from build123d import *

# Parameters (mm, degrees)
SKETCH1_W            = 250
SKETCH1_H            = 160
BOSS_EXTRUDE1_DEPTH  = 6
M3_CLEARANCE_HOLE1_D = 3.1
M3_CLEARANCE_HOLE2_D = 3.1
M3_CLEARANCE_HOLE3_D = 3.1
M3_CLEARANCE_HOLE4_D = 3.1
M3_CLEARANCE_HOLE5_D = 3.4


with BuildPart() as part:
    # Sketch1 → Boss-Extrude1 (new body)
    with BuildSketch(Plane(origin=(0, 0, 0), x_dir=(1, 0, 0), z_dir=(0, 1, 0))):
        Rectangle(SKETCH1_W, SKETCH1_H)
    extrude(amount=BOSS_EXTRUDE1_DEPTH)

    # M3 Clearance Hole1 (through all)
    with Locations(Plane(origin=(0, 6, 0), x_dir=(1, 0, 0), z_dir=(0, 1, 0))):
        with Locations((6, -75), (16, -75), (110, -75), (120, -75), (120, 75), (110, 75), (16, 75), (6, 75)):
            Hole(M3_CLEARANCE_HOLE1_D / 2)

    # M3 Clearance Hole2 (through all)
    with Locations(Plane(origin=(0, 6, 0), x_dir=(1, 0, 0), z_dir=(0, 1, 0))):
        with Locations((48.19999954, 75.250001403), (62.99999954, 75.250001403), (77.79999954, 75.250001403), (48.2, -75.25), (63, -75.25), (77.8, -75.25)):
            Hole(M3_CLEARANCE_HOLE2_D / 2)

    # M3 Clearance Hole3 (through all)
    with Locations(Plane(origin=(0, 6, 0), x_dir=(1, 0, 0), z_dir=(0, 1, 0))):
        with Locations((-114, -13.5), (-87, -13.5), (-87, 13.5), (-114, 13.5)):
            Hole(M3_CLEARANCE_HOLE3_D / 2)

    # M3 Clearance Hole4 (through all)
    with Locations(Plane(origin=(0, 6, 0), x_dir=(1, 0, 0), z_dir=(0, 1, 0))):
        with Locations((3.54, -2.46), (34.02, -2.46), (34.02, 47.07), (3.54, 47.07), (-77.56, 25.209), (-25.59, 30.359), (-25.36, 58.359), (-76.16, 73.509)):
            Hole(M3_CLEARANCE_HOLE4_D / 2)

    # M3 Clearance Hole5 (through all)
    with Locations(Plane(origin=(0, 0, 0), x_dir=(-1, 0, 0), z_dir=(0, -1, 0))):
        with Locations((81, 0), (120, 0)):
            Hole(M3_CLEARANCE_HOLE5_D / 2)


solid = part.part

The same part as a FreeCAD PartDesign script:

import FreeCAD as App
import Part
import Sketcher
from FreeCAD import Vector

doc = App.newDocument("Part")
body = doc.addObject("PartDesign::Body", "Body")

# Sketch on XZ plane
sketch1 = doc.addObject("Sketcher::SketchObject", "Sketch")
body.addObject(sketch1)
sketch1.AttachmentSupport = (doc.XZ_Plane, [""])
sketch1.MapMode = "FlatFace"
sketch1.addGeometry([
    Part.LineSegment(Vector(-125, -80, 0), Vector(-125, 80, 0)),
    Part.LineSegment(Vector(-125, 80, 0), Vector(125, 80, 0)),
    Part.LineSegment(Vector(125, 80, 0), Vector(125, -80, 0)),
    Part.LineSegment(Vector(125, -80, 0), Vector(-125, -80, 0)),
], False)
sketch1.addConstraint([
    Sketcher.Constraint("Coincident", 0, 2, 1, 1),
    Sketcher.Constraint("Coincident", 1, 2, 2, 1),
    Sketcher.Constraint("Coincident", 2, 2, 3, 1),
    Sketcher.Constraint("Coincident", 3, 2, 0, 1),
    Sketcher.Constraint("Vertical", 0),
    Sketcher.Constraint("Horizontal", 1),
    Sketcher.Constraint("Vertical", 2),
    Sketcher.Constraint("Horizontal", 3),
    Sketcher.Constraint("Symmetric", 0, 2, 2, 2, -1, 1),
    Sketcher.Constraint("DistanceX", 1, 1, 1, 2, 250.0),
    Sketcher.Constraint("DistanceY", 0, 1, 0, 2, 160.0),
])
pad1 = doc.addObject("PartDesign::Pad", "Pad")
body.addObject(pad1)
pad1.Profile = sketch1
pad1.Length = 6
pad1.Reversed = True

# Sketch on XZ plane
sketch2 = doc.addObject("Sketcher::SketchObject", "Sketch001")
body.addObject(sketch2)
sketch2.AttachmentSupport = (doc.XZ_Plane, [""])
sketch2.MapMode = "FlatFace"
sketch2.AttachmentOffset = App.Placement(Vector(0, 0, -6), App.Rotation())
sketch2.addGeometry([
    Part.Circle(Vector(6, 75, 0), Vector(0, 0, 1), 1.6),  # 0
    Part.Circle(Vector(16, 75, 0), Vector(0, 0, 1), 1.6),  # 1
    Part.Circle(Vector(110, 75, 0), Vector(0, 0, 1), 1.6),  # 2
    Part.Circle(Vector(120, 75, 0), Vector(0, 0, 1), 1.6),  # 3
    Part.Circle(Vector(120, -75, 0), Vector(0, 0, 1), 1.6),  # 4
    Part.Circle(Vector(110, -75, 0), Vector(0, 0, 1), 1.6),  # 5
    Part.Circle(Vector(16, -75, 0), Vector(0, 0, 1), 1.6),  # 6
    Part.Circle(Vector(6, -75, 0), Vector(0, 0, 1), 1.6),  # 7
], False)
sketch2.addConstraint([
    Sketcher.Constraint("Equal", 0, 1),
    Sketcher.Constraint("Equal", 1, 2),
    Sketcher.Constraint("Equal", 2, 3),
    Sketcher.Constraint("Equal", 3, 4),
    Sketcher.Constraint("Equal", 4, 5),
    Sketcher.Constraint("Equal", 5, 6),
    Sketcher.Constraint("Equal", 6, 7),
    Sketcher.Constraint("Symmetric", 3, 3, 4, 3, -1),
    Sketcher.Constraint("Symmetric", 2, 3, 5, 3, -1),
    Sketcher.Constraint("Symmetric", 1, 3, 6, 3, -1),
    Sketcher.Constraint("Symmetric", 0, 3, 7, 3, -1),
    Sketcher.Constraint("Horizontal", 0, 3, 1, 3),
    Sketcher.Constraint("Horizontal", 1, 3, 2, 3),
    Sketcher.Constraint("Horizontal", 2, 3, 3, 3),
    Sketcher.Constraint("Diameter", 0, 3.1),
    Sketcher.Constraint("DistanceX", -1, 1, 0, 3, 6.0),
    Sketcher.Constraint("DistanceY", -1, 1, 0, 3, 75.0),
    Sketcher.Constraint("DistanceX", -1, 1, 1, 3, 16.0),
    Sketcher.Constraint("DistanceX", -1, 1, 2, 3, 110.0),
    Sketcher.Constraint("DistanceX", -1, 1, 3, 3, 120.0),
])
doc.recompute()
hole = doc.addObject("PartDesign::Hole", "Hole")
body.addObject(hole)
hole.Profile = sketch2
hole.ThreadType = "None"
hole.Diameter = 3.1
hole.DepthType = "ThroughAll"
hole.Reversed = True

# Sketch on XZ plane
sketch3 = doc.addObject("Sketcher::SketchObject", "Sketch002")
body.addObject(sketch3)
sketch3.AttachmentSupport = (doc.XZ_Plane, [""])
sketch3.MapMode = "FlatFace"
sketch3.AttachmentOffset = App.Placement(Vector(0, 0, -6), App.Rotation())
sketch3.addGeometry([
    Part.Circle(Vector(48.2, -75.3, 0), Vector(0, 0, 1), 1.6),  # 0
    Part.Circle(Vector(63, -75.3, 0), Vector(0, 0, 1), 1.6),  # 1
    Part.Circle(Vector(77.8, -75.3, 0), Vector(0, 0, 1), 1.6),  # 2
    Part.Circle(Vector(48.2, 75.2, 0), Vector(0, 0, 1), 1.6),  # 3
    Part.Circle(Vector(63, 75.2, 0), Vector(0, 0, 1), 1.6),  # 4
    Part.Circle(Vector(77.8, 75.2, 0), Vector(0, 0, 1), 1.6),  # 5
], False)
sketch3.addConstraint([
    Sketcher.Constraint("Equal", 0, 1),
    Sketcher.Constraint("Equal", 1, 2),
    Sketcher.Constraint("Equal", 2, 3),
    Sketcher.Constraint("Equal", 3, 4),
    Sketcher.Constraint("Equal", 4, 5),
    Sketcher.Constraint("Symmetric", 0, 3, 3, 3, -1),
    Sketcher.Constraint("Symmetric", 1, 3, 4, 3, -1),
    Sketcher.Constraint("Symmetric", 2, 3, 5, 3, -1),
    Sketcher.Constraint("Horizontal", 0, 3, 1, 3),
    Sketcher.Constraint("Horizontal", 1, 3, 2, 3),
    Sketcher.Constraint("Diameter", 0, 3.1),
    Sketcher.Constraint("DistanceX", -1, 1, 1, 3, 63.0),
    Sketcher.Constraint("DistanceX", -1, 1, 0, 3, 48.2),
    Sketcher.Constraint("DistanceX", -1, 1, 2, 3, 77.8),
    Sketcher.Constraint("DistanceY", 0, 3, 3, 3, 150.500001),
])
doc.recompute()
hole2 = doc.addObject("PartDesign::Hole", "Hole001")
body.addObject(hole2)
hole2.Profile = sketch3
hole2.ThreadType = "None"
hole2.Diameter = 3.1
hole2.DepthType = "ThroughAll"
hole2.Reversed = True

# Sketch on XZ plane
sketch4 = doc.addObject("Sketcher::SketchObject", "Sketch003")
body.addObject(sketch4)
sketch4.AttachmentSupport = (doc.XZ_Plane, [""])
sketch4.MapMode = "FlatFace"
sketch4.AttachmentOffset = App.Placement(Vector(0, 0, -6), App.Rotation())
sketch4.addGeometry([
    Part.Circle(Vector(-114, 13.5, 0), Vector(0, 0, 1), 1.6),
    Part.Circle(Vector(-87, 13.5, 0), Vector(0, 0, 1), 1.6),
    Part.Circle(Vector(-87, -13.5, 0), Vector(0, 0, 1), 1.6),
    Part.Circle(Vector(-114, -13.5, 0), Vector(0, 0, 1), 1.6),
], False)
sketch4.addConstraint([
    Sketcher.Constraint("Equal", 0, 1),
    Sketcher.Constraint("Equal", 1, 2),
    Sketcher.Constraint("Equal", 2, 3),
    Sketcher.Constraint("Symmetric", 1, 3, 2, 3, -1),
    Sketcher.Constraint("Symmetric", 0, 3, 3, 3, -1),
    Sketcher.Constraint("Horizontal", 0, 3, 1, 3),
    Sketcher.Constraint("Diameter", 0, 3.1),
    Sketcher.Constraint("DistanceX", 0, 3, -1, 1, 114.0),
    Sketcher.Constraint("DistanceX", 1, 3, -1, 1, 87.0),
    Sketcher.Constraint("DistanceY", 2, 3, 1, 3, 27.0),
])
doc.recompute()
hole3 = doc.addObject("PartDesign::Hole", "Hole002")
body.addObject(hole3)
hole3.Profile = sketch4
hole3.ThreadType = "None"
hole3.Diameter = 3.1
hole3.DepthType = "ThroughAll"
hole3.Reversed = True

# Sketch on XZ plane
sketch5 = doc.addObject("Sketcher::SketchObject", "Sketch004")
body.addObject(sketch5)
sketch5.AttachmentSupport = (doc.XZ_Plane, [""])
sketch5.MapMode = "FlatFace"
sketch5.AttachmentOffset = App.Placement(Vector(0, 0, -6), App.Rotation())
sketch5.addGeometry([
    Part.Circle(Vector(3.5, 2.5, 0), Vector(0, 0, 1), 1.6),  # 0
    Part.Circle(Vector(34, 2.5, 0), Vector(0, 0, 1), 1.6),  # 1
    Part.Circle(Vector(34, -47.1, 0), Vector(0, 0, 1), 1.6),  # 2
    Part.Circle(Vector(3.5, -47.1, 0), Vector(0, 0, 1), 1.6),  # 3
    Part.Circle(Vector(-77.6, -25.2, 0), Vector(0, 0, 1), 1.6),  # 4
    Part.Circle(Vector(-25.6, -30.4, 0), Vector(0, 0, 1), 1.6),  # 5
    Part.Circle(Vector(-25.4, -58.4, 0), Vector(0, 0, 1), 1.6),  # 6
    Part.Circle(Vector(-76.2, -73.5, 0), Vector(0, 0, 1), 1.6),  # 7
], False)
sketch5.addConstraint([
    Sketcher.Constraint("Equal", 0, 1),
    Sketcher.Constraint("Equal", 1, 2),
    Sketcher.Constraint("Equal", 2, 3),
    Sketcher.Constraint("Equal", 3, 4),
    Sketcher.Constraint("Equal", 4, 5),
    Sketcher.Constraint("Equal", 5, 6),
    Sketcher.Constraint("Equal", 6, 7),
    Sketcher.Constraint("Horizontal", 0, 3, 1, 3),
    Sketcher.Constraint("Horizontal", 2, 3, 3, 3),
    Sketcher.Constraint("Vertical", 1, 3, 2, 3),
    Sketcher.Constraint("Vertical", 0, 3, 3, 3),
    Sketcher.Constraint("Diameter", 0, 3.1),
    Sketcher.Constraint("DistanceY", 6, 3, 5, 3, 28.0),
    Sketcher.Constraint("DistanceX", 4, 3, 3, 3, 81.1),
    Sketcher.Constraint("DistanceX", 6, 3, 3, 3, 28.9),
    Sketcher.Constraint("DistanceX", 4, 3, 7, 3, 1.4),
    Sketcher.Constraint("DistanceY", 7, 3, 4, 3, 48.3),
    Sketcher.Constraint("DistanceX", -1, 1, 0, 3, 3.54),
    Sketcher.Constraint("DistanceY", -1, 1, 0, 3, 2.46),
    Sketcher.Constraint("DistanceX", -1, 1, 1, 3, 34.02),
    Sketcher.Constraint("DistanceY", 2, 3, -1, 1, 47.07),
    Sketcher.Constraint("DistanceX", 5, 3, -1, 1, 25.59),
    Sketcher.Constraint("DistanceY", 5, 3, 4, 3, 5.15),
    Sketcher.Constraint("DistanceY", 4, 3, -1, 1, 25.209),
])
doc.recompute()
hole4 = doc.addObject("PartDesign::Hole", "Hole003")
body.addObject(hole4)
hole4.Profile = sketch5
hole4.ThreadType = "None"
hole4.Diameter = 3.1
hole4.DepthType = "ThroughAll"
hole4.Reversed = True

# Sketch on XZ plane
sketch6 = doc.addObject("Sketcher::SketchObject", "Sketch005")
body.addObject(sketch6)
sketch6.AttachmentSupport = (doc.XZ_Plane, [""])
sketch6.MapMode = "FlatFace"
sketch6.addGeometry([
    Part.Circle(Vector(-81, 0, 0), Vector(0, 0, 1), 1.7),
    Part.Circle(Vector(-120, 0, 0), Vector(0, 0, 1), 1.7),
], False)
sketch6.addConstraint([
    Sketcher.Constraint("Equal", 0, 1),
    Sketcher.Constraint("PointOnObject", 0, 3, -1),
    Sketcher.Constraint("PointOnObject", 1, 3, -1),
    Sketcher.Constraint("Diameter", 0, 3.4),
    Sketcher.Constraint("DistanceX", 0, 3, -1, 1, 81.0),
    Sketcher.Constraint("DistanceX", 1, 3, -1, 1, 120.0),
])
doc.recompute()
hole5 = doc.addObject("PartDesign::Hole", "Hole004")
body.addObject(hole5)
hole5.Profile = sketch6
hole5.ThreadType = "None"
hole5.Diameter = 3.4
hole5.DepthType = "ThroughAll"

doc.recompute()
